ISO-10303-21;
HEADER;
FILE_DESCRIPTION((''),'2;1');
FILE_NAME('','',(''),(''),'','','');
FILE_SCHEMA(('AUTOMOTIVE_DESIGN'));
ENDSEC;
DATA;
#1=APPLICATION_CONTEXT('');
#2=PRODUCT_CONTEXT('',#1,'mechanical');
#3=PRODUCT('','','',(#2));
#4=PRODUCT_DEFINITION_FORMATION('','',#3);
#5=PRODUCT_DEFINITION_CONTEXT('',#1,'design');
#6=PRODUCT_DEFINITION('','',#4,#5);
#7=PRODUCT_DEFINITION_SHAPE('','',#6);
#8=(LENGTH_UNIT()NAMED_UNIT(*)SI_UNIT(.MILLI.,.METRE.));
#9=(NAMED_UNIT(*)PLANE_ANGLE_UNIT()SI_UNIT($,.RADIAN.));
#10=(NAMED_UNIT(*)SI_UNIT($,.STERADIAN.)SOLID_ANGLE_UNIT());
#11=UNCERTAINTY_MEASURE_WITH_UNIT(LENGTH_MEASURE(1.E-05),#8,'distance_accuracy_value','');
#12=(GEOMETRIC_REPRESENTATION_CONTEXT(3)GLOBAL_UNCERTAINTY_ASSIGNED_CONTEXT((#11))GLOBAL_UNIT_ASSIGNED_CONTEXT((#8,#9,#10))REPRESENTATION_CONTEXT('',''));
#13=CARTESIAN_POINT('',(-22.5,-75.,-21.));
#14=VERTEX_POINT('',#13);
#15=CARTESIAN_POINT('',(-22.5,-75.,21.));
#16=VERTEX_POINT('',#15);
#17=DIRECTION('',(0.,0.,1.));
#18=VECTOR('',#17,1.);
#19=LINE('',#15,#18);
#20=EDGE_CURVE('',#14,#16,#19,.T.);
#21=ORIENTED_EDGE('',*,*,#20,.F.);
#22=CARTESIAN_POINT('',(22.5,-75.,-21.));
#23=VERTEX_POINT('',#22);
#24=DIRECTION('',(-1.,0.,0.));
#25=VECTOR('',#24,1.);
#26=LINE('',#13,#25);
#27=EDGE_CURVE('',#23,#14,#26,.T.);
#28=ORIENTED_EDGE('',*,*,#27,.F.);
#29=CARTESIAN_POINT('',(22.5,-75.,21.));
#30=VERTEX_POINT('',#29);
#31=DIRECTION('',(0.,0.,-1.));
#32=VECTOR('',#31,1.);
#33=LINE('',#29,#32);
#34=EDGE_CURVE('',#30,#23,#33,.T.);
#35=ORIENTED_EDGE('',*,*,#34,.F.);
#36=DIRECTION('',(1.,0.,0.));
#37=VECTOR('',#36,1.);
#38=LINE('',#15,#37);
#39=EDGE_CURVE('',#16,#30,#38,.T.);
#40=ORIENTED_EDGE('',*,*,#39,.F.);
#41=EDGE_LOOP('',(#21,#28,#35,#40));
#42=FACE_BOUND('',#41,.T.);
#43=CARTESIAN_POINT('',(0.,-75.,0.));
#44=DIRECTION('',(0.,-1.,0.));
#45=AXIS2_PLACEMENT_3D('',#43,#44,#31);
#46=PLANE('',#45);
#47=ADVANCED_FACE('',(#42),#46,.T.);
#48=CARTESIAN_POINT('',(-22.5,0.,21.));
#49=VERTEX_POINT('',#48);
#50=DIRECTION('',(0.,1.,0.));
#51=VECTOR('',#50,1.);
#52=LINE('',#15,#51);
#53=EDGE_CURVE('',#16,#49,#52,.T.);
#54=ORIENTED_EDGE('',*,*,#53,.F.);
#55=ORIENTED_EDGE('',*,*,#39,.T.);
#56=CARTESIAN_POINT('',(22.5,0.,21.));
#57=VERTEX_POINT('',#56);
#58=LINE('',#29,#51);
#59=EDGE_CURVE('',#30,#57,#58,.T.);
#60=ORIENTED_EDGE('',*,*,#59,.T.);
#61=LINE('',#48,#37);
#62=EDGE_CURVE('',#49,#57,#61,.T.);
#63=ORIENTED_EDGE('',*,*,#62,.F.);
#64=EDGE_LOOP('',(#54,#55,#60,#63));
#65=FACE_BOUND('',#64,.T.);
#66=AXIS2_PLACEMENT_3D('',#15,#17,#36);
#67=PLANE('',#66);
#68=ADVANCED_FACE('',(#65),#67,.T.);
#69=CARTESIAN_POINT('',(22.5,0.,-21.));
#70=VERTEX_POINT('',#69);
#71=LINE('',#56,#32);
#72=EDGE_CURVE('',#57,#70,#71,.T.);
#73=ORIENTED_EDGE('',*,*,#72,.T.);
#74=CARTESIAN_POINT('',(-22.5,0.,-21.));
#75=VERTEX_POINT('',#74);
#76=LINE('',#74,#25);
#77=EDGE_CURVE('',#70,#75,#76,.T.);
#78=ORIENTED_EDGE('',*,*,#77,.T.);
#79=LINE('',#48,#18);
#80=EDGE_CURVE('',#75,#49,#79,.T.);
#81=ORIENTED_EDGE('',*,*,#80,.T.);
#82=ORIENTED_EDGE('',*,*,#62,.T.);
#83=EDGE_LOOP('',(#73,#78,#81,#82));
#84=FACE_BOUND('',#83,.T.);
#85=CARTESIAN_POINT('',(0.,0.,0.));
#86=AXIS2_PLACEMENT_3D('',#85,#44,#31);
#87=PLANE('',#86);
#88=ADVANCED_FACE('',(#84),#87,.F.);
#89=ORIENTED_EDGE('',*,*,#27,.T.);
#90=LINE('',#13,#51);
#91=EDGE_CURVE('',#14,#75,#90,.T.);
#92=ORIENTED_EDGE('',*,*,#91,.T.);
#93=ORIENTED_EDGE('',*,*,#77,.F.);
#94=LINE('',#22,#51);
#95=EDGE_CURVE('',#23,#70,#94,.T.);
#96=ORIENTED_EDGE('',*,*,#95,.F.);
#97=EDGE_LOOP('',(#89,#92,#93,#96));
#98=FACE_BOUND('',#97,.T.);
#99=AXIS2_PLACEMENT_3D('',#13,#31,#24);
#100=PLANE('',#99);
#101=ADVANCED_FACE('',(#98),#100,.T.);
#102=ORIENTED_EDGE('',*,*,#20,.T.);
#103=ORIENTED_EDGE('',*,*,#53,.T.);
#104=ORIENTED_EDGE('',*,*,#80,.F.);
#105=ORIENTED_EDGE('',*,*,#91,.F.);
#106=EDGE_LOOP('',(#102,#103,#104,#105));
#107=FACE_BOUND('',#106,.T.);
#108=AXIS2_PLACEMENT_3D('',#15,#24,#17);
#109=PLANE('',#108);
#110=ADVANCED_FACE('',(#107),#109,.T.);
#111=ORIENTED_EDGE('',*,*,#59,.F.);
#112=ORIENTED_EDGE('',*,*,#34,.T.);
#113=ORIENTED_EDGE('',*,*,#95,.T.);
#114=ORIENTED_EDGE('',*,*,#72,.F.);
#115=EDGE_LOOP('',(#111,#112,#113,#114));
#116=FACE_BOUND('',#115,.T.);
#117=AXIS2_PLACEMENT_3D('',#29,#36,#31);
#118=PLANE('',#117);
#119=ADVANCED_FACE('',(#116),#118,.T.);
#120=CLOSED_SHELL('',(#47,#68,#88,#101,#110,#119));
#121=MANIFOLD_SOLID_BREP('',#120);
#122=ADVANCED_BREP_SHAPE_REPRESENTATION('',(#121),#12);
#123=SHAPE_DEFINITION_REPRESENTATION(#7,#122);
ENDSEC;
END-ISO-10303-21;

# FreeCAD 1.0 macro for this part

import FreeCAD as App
import Part
import Sketcher

V = App.Vector
Q = App.Units.Quantity

doc = App.newDocument("Part")
body = doc.addObject("PartDesign::Body", "Body")

sketch1 = doc.addObject("Sketcher::SketchObject", "Sketch")
body.addObject(sketch1)
sketch1.AttachmentSupport = (doc.XZ_Plane, [""])
sketch1.MapMode = "FlatFace"
sketch1.addGeometry([
    Part.LineSegment(V(-22, -21, 0), V(-22, 21, 0)),
    Part.LineSegment(V(-22, 21, 0), V(22, 21, 0)),
    Part.LineSegment(V(22, 21, 0), V(22, -21, 0)),
    Part.LineSegment(V(22, -21, 0), V(-22, -21, 0)),
], False)
sketch1.addConstraint([
    Sketcher.Constraint("Coincident", 0, 2, 1, 1),
    Sketcher.Constraint("Coincident", 1, 2, 2, 1),
    Sketcher.Constraint("Coincident", 2, 2, 3, 1),
    Sketcher.Constraint("Coincident", 3, 2, 0, 1),
    Sketcher.Constraint("Vertical", 0),
    Sketcher.Constraint("Horizontal", 1),
    Sketcher.Constraint("Vertical", 2),
    Sketcher.Constraint("Horizontal", 3),
    Sketcher.Constraint("Symmetric", 0, 2, 2, 2, -1, 1),
    Sketcher.Constraint("DistanceX", 1, 1, 1, 2, Q("45 mm")),
    Sketcher.Constraint("DistanceY", 0, 1, 0, 2, Q("42 mm")),
])
pad1 = doc.addObject("PartDesign::Pad", "Pad")
body.addObject(pad1)
pad1.Profile = sketch1
pad1.Length = 75

doc.recompute()
